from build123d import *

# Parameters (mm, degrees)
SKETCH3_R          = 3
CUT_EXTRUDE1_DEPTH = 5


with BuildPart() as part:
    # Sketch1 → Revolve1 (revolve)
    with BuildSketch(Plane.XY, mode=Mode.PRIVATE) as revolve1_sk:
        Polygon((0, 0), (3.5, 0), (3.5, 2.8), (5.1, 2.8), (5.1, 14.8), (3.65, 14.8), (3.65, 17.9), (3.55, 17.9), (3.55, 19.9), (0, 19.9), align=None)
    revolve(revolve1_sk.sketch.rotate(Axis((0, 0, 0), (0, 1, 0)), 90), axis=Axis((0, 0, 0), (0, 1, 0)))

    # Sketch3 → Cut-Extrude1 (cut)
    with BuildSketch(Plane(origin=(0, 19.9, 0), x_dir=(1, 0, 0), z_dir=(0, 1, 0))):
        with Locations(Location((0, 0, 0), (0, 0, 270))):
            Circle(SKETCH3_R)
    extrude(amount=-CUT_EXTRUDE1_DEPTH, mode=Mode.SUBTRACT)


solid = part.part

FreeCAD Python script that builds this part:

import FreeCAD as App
import Part
import Sketcher
Q = App.Units.Quantity


def add_polygon(sketch, points):
    """Adds a closed chain of lines whose ends are joined by coincident constraints."""
    first, n = sketch.GeometryCount, len(points)
    for a, b in zip(points, points[1:] + points[:1]):
        sketch.addGeometry(Part.LineSegment(App.Vector(*a, 0), App.Vector(*b, 0)), False)
    for i in range(n):
        sketch.addConstraint(Sketcher.Constraint("Coincident", first + i, 2, first + (i + 1) % n, 1))

doc = App.newDocument("Part")
params = doc.addObject("Spreadsheet::Sheet", "Params")
for row, (alias, value) in enumerate([
    ("sketch1_height", "12 mm"),
    ("sketch1_height2", "2 mm"),
    ("sketch1_width", "3.5 mm"),
    ("sketch1_width2", "1.6 mm"),
    ("sketch1_width3", "0.1 mm"),
    ("revolution_angle", "360 deg"),
    ("sketch2_diameter", "6 mm"),
    ("pocket1_length", "5 mm"),
], start=1):
    params.set(f"A{row}", alias)
    params.set(f"B{row}", "=" + value)
    params.setAlias(f"B{row}", alias)

body = doc.addObject("PartDesign::Body", "Body")

# Sketch on XY plane
sketch1 = doc.addObject("Sketcher::SketchObject", "Sketch")
body.addObject(sketch1)
sketch1.AttachmentSupport = (doc.XY_Plane, [""])
sketch1.MapMode = "FlatFace"
add_polygon(sketch1, [(0, 0), (3.5, 0), (3.5, 2.8), (5.1, 2.8), (5.1, 14.8), (3.65, 14.8), (3.65, 17.9), (3.55, 17.9), (3.55, 19.9), (0, 19.9)])  # lines 0-9
sketch1.addConstraint(Sketcher.Constraint("Horizontal", 0))
sketch1.addConstraint(Sketcher.Constraint("Vertical", 1))
sketch1.addConstraint(Sketcher.Constraint("Horizontal", 2))
sketch1.addConstraint(Sketcher.Constraint("Vertical", 3))
sketch1.addConstraint(Sketcher.Constraint("Horizontal", 4))
sketch1.addConstraint(Sketcher.Constraint("Vertical", 5))
sketch1.addConstraint(Sketcher.Constraint("Horizontal", 6))
sketch1.addConstraint(Sketcher.Constraint("Vertical", 7))
sketch1.addConstraint(Sketcher.Constraint("Horizontal", 8))
sketch1.addConstraint(Sketcher.Constraint("Vertical", 9))
sketch1.addConstraint(Sketcher.Constraint("Coincident", 9, 2, -1, 1))
sketch1.addConstraint(Sketcher.Constraint("DistanceY", 3, 1, 3, 2, Q("12 mm")))
sketch1.addConstraint(Sketcher.Constraint("DistanceY", 7, 1, 7, 2, Q("2 mm")))
sketch1.addConstraint(Sketcher.Constraint("DistanceX", 0, 1, 0, 2, Q("3.5 mm")))
sketch1.addConstraint(Sketcher.Constraint("DistanceX", 2, 1, 2, 2, Q("1.6 mm")))
sketch1.addConstraint(Sketcher.Constraint("DistanceX", 6, 2, 6, 1, Q("0.1 mm")))
sketch1.addConstraint(Sketcher.Constraint("DistanceY", 1, 1, 1, 2, Q("2.8 mm")))
sketch1.addConstraint(Sketcher.Constraint("DistanceY", 5, 1, 5, 2, Q("3.1 mm")))
sketch1.addConstraint(Sketcher.Constraint("DistanceX", 4, 2, 4, 1, Q("1.45 mm")))
sketch1.setExpression("Constraints[21]", "Params.sketch1_height")
sketch1.setExpression("Constraints[22]", "Params.sketch1_height2")
sketch1.setExpression("Constraints[23]", "Params.sketch1_width")
sketch1.setExpression("Constraints[24]", "Params.sketch1_width2")
sketch1.setExpression("Constraints[25]", "Params.sketch1_width3")
revolution = doc.addObject("PartDesign::Revolution", "Revolution")
body.addObject(revolution)
revolution.Profile = sketch1
revolution.ReferenceAxis = (sketch1, ["V_Axis"])
revolution.setExpression("Angle", "Params.revolution_angle")

# Sketch on XZ plane
sketch2 = doc.addObject("Sketcher::SketchObject", "Sketch001")
body.addObject(sketch2)
sketch2.AttachmentSupport = (doc.XZ_Plane, [""])
sketch2.MapMode = "FlatFace"
sketch2.AttachmentOffset = App.Placement(App.Vector(0, 0, -19.9), App.Rotation())
sketch2.addGeometry(Part.Circle(App.Vector(0, 0, 0), App.Vector(0, 0, 1), 3), False)
sketch2.addConstraint(Sketcher.Constraint("Coincident", 0, 3, -1, 1))
sketch2.addConstraint(Sketcher.Constraint("Diameter", 0, Q("6 mm")))
sketch2.setExpression("Constraints[1]", "Params.sketch2_diameter")
pocket1 = doc.addObject("PartDesign::Pocket", "Pocket")
body.addObject(pocket1)
pocket1.Profile = sketch2
pocket1.setExpression("Length", "Params.pocket1_length")
pocket1.Reversed = True

doc.recompute()
